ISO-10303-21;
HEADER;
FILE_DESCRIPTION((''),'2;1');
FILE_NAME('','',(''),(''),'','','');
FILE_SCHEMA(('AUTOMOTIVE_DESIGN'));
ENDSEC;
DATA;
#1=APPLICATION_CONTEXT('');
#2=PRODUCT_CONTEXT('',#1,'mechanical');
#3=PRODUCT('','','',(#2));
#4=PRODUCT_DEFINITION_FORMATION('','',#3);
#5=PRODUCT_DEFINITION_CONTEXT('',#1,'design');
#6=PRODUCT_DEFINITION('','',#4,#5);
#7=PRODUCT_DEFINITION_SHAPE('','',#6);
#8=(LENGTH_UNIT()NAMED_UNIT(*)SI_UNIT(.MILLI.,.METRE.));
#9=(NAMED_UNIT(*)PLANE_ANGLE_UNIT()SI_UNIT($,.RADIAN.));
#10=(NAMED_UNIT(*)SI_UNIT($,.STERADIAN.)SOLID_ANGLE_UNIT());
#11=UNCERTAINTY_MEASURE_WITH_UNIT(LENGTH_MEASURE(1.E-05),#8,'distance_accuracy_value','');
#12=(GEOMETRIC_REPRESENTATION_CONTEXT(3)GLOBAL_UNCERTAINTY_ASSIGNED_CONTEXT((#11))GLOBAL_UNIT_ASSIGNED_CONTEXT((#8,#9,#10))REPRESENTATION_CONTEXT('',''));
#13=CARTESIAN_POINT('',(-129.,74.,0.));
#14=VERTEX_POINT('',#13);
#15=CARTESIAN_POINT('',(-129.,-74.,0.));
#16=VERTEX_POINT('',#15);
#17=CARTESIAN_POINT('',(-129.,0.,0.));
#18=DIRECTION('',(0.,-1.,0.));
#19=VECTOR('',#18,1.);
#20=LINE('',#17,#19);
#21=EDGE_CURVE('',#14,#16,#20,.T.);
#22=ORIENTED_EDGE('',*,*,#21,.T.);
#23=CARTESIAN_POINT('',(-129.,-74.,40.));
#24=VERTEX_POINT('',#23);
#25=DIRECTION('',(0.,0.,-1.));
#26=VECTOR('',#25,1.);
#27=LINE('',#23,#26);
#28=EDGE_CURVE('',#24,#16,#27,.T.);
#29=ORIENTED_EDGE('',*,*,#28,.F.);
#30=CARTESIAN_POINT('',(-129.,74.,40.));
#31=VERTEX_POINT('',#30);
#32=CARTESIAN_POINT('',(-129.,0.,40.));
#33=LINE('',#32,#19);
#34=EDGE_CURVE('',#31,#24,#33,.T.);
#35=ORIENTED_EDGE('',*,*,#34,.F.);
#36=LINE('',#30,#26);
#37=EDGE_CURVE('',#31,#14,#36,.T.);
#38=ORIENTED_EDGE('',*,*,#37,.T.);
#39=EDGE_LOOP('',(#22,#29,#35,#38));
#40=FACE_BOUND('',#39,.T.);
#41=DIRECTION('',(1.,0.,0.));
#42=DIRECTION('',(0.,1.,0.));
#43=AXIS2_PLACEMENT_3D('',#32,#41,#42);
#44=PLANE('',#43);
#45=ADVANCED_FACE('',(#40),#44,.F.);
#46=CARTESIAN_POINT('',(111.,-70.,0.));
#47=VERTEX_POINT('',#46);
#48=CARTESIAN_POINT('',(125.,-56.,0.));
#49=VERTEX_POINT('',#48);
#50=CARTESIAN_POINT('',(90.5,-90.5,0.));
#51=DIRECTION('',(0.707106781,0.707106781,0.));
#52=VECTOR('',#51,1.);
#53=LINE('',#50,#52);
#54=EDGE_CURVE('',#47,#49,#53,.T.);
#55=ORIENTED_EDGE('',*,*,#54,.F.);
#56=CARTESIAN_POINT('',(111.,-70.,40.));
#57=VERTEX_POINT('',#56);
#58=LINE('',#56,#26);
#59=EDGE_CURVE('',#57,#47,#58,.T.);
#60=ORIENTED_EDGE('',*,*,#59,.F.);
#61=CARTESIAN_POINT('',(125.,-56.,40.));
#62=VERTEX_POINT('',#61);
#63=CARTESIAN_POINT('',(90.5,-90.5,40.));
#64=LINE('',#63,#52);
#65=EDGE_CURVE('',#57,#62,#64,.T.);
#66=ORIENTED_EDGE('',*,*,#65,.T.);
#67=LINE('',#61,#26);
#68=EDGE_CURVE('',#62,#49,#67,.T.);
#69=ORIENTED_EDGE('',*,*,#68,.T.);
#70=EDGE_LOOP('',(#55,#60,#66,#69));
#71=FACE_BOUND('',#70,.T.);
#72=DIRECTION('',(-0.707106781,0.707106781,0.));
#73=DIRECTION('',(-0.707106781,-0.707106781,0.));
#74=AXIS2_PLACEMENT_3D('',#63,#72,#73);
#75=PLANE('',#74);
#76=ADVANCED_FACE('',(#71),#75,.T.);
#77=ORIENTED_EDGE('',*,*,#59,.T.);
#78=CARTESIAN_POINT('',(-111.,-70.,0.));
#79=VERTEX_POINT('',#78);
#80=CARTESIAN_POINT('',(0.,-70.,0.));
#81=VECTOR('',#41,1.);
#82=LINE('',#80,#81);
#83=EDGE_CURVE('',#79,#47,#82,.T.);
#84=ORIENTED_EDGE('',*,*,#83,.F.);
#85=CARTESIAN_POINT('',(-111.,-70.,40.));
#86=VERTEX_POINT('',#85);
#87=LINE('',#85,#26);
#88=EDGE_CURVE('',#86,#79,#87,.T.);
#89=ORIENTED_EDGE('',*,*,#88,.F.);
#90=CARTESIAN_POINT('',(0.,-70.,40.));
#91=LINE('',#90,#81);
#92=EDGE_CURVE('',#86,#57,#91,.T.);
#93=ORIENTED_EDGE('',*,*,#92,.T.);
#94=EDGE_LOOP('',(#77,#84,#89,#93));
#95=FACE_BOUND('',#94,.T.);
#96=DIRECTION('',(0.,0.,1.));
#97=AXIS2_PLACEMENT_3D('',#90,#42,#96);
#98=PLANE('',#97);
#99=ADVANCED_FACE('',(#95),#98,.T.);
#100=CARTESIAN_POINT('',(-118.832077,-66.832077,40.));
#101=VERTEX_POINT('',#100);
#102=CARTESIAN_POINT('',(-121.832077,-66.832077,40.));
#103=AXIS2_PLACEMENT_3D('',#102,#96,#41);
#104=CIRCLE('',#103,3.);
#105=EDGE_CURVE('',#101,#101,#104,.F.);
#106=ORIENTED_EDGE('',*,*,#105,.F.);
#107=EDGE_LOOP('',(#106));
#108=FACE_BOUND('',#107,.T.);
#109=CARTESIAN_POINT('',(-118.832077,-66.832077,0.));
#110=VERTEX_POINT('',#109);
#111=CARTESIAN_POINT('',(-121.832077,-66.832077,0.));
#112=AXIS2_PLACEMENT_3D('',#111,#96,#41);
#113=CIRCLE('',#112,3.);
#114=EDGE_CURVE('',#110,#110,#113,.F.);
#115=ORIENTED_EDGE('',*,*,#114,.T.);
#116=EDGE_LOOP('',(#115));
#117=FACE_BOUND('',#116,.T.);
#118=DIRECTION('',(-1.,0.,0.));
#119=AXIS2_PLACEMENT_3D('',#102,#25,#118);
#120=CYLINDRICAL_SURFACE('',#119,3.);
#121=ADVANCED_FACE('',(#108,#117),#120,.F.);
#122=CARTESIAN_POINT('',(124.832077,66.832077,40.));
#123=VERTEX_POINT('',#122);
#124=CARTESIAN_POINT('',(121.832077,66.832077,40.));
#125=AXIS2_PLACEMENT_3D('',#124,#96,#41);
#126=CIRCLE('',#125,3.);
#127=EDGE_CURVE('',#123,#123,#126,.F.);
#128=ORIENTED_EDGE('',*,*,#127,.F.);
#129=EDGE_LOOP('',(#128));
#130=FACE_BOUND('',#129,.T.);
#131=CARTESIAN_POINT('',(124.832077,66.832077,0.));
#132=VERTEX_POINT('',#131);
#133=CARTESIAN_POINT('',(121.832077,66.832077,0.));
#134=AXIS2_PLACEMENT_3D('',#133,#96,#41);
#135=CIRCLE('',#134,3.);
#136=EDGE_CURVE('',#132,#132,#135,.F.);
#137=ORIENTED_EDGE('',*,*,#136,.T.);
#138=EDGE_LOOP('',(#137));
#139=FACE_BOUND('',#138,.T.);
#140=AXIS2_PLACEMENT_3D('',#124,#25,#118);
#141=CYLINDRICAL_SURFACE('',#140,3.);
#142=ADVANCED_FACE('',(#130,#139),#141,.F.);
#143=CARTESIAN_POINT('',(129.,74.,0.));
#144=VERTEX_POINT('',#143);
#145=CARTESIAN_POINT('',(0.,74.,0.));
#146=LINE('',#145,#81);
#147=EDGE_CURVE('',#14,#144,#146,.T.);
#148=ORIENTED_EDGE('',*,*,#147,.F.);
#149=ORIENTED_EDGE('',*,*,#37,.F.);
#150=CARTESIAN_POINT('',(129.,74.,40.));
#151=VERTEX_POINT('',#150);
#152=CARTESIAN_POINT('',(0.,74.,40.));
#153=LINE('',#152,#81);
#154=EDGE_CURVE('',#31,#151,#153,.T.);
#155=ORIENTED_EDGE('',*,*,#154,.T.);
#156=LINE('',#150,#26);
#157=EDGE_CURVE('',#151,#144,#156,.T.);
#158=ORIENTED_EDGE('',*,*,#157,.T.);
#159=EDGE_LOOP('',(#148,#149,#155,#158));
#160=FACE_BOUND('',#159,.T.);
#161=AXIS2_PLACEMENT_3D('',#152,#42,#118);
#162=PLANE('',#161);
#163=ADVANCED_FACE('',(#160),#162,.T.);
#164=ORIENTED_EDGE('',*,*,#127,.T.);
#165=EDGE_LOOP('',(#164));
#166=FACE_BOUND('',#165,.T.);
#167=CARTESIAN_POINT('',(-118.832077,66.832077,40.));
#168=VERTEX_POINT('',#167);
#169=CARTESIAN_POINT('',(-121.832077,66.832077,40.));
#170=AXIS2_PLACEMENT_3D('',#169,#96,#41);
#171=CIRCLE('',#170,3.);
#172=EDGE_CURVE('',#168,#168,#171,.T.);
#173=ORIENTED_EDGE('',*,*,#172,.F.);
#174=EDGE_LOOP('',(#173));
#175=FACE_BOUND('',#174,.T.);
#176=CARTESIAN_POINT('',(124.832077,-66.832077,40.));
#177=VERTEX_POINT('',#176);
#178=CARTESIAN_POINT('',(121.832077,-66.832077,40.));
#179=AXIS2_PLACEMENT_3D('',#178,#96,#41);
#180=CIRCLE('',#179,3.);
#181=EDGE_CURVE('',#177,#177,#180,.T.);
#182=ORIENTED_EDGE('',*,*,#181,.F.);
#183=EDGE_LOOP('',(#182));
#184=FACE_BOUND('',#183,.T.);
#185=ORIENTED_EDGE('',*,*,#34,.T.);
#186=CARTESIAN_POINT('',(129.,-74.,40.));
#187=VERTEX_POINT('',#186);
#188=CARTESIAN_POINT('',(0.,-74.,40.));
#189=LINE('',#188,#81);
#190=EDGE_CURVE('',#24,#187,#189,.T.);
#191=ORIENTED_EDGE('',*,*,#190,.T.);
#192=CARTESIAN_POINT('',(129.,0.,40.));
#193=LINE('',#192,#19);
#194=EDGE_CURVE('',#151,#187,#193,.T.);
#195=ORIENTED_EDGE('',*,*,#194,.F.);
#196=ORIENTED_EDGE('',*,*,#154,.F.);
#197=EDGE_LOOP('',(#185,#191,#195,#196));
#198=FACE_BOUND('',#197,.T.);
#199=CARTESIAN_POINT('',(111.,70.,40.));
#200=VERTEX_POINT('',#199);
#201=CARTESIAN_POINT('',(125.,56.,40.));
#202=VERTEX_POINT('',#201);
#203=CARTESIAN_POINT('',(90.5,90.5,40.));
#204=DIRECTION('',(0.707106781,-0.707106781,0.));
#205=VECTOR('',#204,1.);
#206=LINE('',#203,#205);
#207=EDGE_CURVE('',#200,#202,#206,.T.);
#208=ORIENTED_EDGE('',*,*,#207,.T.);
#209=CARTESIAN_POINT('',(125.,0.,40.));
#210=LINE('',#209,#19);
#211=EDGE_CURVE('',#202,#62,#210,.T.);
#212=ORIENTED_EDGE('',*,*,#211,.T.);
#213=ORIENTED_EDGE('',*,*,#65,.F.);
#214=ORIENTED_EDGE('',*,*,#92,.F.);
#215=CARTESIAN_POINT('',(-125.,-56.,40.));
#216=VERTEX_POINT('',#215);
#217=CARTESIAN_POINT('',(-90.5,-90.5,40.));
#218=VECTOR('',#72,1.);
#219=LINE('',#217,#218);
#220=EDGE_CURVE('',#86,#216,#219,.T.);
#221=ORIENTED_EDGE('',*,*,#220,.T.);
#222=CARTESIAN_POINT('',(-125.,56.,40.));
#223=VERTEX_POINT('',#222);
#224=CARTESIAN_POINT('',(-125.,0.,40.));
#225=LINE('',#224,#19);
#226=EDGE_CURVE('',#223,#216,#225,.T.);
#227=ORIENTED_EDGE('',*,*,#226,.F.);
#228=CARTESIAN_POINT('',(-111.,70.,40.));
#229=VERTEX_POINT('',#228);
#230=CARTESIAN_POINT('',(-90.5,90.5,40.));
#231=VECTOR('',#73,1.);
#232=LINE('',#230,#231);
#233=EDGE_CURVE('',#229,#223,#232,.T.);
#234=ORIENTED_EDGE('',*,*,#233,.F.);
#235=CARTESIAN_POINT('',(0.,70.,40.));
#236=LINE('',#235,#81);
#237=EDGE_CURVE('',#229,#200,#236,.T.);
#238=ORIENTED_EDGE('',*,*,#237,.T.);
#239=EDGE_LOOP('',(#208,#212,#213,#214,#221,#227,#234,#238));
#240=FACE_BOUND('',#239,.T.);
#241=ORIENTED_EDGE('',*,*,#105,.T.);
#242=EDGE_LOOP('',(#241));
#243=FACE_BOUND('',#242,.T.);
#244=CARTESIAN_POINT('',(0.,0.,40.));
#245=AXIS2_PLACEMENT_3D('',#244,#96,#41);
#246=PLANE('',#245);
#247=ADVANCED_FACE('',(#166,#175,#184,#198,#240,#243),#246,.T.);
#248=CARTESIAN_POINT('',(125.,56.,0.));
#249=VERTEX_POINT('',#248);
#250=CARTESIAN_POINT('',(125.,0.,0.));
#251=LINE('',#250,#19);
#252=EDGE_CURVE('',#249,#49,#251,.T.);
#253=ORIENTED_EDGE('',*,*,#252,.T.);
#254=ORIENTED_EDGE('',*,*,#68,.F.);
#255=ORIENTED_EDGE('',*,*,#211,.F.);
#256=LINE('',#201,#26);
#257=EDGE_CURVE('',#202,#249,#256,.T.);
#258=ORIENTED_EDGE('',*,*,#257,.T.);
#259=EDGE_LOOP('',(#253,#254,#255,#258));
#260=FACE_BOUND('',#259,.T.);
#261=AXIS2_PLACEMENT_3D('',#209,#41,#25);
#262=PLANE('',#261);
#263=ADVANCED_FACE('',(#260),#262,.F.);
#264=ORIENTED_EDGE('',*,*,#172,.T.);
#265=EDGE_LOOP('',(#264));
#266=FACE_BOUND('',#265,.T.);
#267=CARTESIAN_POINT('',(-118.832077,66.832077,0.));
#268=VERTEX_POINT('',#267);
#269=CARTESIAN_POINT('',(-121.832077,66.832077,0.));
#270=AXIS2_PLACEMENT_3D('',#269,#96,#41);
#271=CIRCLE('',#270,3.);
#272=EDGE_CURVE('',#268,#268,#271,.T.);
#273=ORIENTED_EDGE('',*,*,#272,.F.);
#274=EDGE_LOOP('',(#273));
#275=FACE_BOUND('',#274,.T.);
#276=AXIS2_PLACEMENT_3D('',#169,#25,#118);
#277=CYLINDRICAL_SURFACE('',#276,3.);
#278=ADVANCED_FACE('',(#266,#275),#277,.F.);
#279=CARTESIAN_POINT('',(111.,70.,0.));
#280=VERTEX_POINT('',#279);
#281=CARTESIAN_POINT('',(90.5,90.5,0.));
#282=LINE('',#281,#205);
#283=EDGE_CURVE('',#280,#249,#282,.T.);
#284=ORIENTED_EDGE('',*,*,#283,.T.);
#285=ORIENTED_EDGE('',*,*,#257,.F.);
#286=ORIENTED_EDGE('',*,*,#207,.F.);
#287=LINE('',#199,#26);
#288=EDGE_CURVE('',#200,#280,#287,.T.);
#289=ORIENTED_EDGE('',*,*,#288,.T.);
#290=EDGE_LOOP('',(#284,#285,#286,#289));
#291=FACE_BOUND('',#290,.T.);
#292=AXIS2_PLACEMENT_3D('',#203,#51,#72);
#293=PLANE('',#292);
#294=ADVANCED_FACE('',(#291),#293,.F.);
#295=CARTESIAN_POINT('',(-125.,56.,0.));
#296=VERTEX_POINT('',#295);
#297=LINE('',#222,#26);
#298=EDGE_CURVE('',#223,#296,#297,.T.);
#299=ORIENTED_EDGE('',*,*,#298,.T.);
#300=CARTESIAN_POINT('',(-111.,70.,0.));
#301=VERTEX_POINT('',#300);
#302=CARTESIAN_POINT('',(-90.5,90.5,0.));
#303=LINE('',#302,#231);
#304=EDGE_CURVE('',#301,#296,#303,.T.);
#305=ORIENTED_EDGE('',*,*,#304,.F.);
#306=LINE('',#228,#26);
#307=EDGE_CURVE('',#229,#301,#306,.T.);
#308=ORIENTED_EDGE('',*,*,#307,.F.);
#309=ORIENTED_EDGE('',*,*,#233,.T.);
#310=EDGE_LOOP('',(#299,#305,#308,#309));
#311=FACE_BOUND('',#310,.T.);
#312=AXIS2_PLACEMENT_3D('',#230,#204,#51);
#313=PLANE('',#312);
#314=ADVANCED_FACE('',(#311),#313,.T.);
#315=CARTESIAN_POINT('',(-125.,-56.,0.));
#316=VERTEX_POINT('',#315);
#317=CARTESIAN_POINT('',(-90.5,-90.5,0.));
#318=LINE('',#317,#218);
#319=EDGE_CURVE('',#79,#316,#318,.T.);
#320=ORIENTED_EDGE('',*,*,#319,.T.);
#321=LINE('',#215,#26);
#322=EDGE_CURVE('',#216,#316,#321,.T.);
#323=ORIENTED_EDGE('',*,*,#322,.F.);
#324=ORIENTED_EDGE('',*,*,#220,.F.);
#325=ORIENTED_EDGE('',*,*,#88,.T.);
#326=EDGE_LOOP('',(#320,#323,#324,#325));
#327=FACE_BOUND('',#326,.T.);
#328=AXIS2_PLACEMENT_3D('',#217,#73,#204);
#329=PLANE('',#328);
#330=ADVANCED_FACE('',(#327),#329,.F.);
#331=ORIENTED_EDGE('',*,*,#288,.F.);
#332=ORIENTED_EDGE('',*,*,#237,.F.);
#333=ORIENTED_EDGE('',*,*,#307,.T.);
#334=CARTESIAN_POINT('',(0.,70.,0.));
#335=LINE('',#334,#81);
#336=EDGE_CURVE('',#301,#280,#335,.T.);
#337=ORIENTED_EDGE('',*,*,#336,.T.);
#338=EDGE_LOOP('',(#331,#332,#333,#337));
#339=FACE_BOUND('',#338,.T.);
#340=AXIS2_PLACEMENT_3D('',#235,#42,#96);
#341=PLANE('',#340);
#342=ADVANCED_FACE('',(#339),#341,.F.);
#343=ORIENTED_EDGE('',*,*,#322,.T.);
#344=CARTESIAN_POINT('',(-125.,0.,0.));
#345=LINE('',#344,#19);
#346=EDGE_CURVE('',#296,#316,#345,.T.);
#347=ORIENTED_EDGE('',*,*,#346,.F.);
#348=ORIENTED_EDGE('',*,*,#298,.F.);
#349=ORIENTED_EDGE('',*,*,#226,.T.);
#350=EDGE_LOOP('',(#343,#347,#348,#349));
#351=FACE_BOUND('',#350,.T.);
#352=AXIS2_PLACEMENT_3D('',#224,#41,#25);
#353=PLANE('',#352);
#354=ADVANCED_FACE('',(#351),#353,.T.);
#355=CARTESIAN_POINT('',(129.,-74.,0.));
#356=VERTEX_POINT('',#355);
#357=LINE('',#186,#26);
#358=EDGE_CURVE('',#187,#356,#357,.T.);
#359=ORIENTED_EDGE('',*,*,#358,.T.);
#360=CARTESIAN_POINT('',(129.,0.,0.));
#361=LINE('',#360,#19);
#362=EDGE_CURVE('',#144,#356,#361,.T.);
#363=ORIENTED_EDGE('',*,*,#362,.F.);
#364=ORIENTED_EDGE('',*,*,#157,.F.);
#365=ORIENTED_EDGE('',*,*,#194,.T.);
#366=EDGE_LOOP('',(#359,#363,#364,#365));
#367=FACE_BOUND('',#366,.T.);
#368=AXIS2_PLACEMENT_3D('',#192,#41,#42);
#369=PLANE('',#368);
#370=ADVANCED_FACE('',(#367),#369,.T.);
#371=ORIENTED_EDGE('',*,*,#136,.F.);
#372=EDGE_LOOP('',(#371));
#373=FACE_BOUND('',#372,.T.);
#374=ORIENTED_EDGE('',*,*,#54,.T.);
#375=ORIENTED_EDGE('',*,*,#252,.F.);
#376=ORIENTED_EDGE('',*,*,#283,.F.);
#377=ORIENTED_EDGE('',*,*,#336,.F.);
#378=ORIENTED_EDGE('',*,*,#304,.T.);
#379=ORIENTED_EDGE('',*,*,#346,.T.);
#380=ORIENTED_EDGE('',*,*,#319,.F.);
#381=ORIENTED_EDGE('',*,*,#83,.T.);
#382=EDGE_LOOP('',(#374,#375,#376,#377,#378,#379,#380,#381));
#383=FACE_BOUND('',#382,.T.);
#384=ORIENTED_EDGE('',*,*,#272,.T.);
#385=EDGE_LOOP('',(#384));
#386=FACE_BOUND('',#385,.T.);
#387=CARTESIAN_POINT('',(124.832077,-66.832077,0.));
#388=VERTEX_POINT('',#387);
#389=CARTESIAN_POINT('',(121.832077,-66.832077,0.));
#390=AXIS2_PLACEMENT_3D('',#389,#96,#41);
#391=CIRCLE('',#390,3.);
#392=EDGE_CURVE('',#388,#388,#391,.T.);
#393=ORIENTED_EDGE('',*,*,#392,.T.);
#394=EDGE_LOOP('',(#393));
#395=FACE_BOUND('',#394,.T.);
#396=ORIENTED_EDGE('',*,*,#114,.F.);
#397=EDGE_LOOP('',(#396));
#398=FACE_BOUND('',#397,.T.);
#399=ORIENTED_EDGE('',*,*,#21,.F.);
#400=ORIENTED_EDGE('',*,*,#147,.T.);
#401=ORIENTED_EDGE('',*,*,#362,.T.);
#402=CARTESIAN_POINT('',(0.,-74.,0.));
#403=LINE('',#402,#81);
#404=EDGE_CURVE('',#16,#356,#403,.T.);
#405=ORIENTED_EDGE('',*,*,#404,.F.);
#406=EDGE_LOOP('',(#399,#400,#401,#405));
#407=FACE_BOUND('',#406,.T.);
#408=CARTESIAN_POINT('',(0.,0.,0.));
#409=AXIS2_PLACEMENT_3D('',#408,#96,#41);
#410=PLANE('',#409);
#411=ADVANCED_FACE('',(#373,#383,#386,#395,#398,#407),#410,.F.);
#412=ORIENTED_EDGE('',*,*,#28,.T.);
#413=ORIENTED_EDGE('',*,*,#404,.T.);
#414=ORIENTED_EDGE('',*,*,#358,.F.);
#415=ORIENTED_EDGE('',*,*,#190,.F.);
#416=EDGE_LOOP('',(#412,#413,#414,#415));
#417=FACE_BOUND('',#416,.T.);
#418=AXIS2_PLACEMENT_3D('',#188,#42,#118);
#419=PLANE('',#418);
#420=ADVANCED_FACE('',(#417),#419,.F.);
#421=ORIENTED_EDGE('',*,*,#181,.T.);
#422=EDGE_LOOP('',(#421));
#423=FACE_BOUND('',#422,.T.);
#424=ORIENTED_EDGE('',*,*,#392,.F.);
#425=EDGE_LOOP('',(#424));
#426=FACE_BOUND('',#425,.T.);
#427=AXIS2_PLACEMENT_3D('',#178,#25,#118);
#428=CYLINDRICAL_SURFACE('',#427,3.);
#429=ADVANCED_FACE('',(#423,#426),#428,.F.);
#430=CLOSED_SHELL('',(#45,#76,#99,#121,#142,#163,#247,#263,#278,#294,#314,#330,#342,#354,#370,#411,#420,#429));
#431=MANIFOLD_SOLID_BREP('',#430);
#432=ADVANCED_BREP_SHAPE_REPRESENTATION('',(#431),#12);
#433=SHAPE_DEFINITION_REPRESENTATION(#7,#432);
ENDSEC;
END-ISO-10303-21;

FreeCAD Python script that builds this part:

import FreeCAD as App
import Part
import Sketcher
Q = App.Units.Quantity

doc = App.newDocument("Part")
body = doc.addObject("PartDesign::Body", "Body")

sketch1 = body.newObject("Sketcher::SketchObject", "Sketch")
sketch1.AttachmentSupport = (doc.getObject("XY_Plane"), [""])
sketch1.MapMode = "FlatFace"
sketch1.addGeometry(Part.LineSegment(App.Vector(-129, 74, 0), App.Vector(-129, -74, 0)), False)
sketch1.addGeometry(Part.LineSegment(App.Vector(-129, -74, 0), App.Vector(129, -74, 0)), False)
sketch1.addGeometry(Part.LineSegment(App.Vector(129, -74, 0), App.Vector(129, 74, 0)), False)
sketch1.addGeometry(Part.LineSegment(App.Vector(129, 74, 0), App.Vector(-129, 74, 0)), False)
sketch1.addGeometry(Part.Circle(App.Vector(-121.8, -66.8, 0), App.Vector(0, 0, 1), 3), False)
sketch1.addGeometry(Part.Circle(App.Vector(121.8, -66.8, 0), App.Vector(0, 0, 1), 3), False)
sketch1.addGeometry(Part.Circle(App.Vector(-121.8, 66.8, 0), App.Vector(0, 0, 1), 3), False)
sketch1.addGeometry(Part.LineSegment(App.Vector(111, -70, 0), App.Vector(-111, -70, 0)), False)
sketch1.addGeometry(Part.LineSegment(App.Vector(-111, -70, 0), App.Vector(-125, -56, 0)), False)
sketch1.addGeometry(Part.LineSegment(App.Vector(-125, -56, 0), App.Vector(-125, 56, 0)), False)
sketch1.addGeometry(Part.LineSegment(App.Vector(-125, 56, 0), App.Vector(-111, 70, 0)), False)
sketch1.addGeometry(Part.LineSegment(App.Vector(-111, 70, 0), App.Vector(111, 70, 0)), False)
sketch1.addGeometry(Part.LineSegment(App.Vector(111, 70, 0), App.Vector(125, 56, 0)), False)
sketch1.addGeometry(Part.LineSegment(App.Vector(125, 56, 0), App.Vector(125, -56, 0)), False)
sketch1.addGeometry(Part.LineSegment(App.Vector(125, -56, 0), App.Vector(111, -70, 0)), False)
sketch1.addGeometry(Part.Circle(App.Vector(121.8, 66.8, 0), App.Vector(0, 0, 1), 3), False)
sketch1.addConstraint(Sketcher.Constraint("Coincident", 0, 2, 1, 1))
sketch1.addConstraint(Sketcher.Constraint("Coincident", 1, 2, 2, 1))
sketch1.addConstraint(Sketcher.Constraint("Coincident", 2, 2, 3, 1))
sketch1.addConstraint(Sketcher.Constraint("Coincident", 3, 2, 0, 1))
sketch1.addConstraint(Sketcher.Constraint("Coincident", 7, 2, 8, 1))
sketch1.addConstraint(Sketcher.Constraint("Coincident", 8, 2, 9, 1))
sketch1.addConstraint(Sketcher.Constraint("Coincident", 9, 2, 10, 1))
sketch1.addConstraint(Sketcher.Constraint("Coincident", 10, 2, 11, 1))
sketch1.addConstraint(Sketcher.Constraint("Coincident", 11, 2, 12, 1))
sketch1.addConstraint(Sketcher.Constraint("Coincident", 12, 2, 13, 1))
sketch1.addConstraint(Sketcher.Constraint("Coincident", 13, 2, 14, 1))
sketch1.addConstraint(Sketcher.Constraint("Coincident", 14, 2, 7, 1))
sketch1.addConstraint(Sketcher.Constraint("Vertical", 0))
sketch1.addConstraint(Sketcher.Constraint("Horizontal", 1))
sketch1.addConstraint(Sketcher.Constraint("Vertical", 2))
sketch1.addConstraint(Sketcher.Constraint("Horizontal", 3))
sketch1.addConstraint(Sketcher.Constraint("Horizontal", 7))
sketch1.addConstraint(Sketcher.Constraint("Vertical", 9))
sketch1.addConstraint(Sketcher.Constraint("Horizontal", 11))
sketch1.addConstraint(Sketcher.Constraint("Vertical", 13))
sketch1.addConstraint(Sketcher.Constraint("Equal", 4, 5))
sketch1.addConstraint(Sketcher.Constraint("Equal", 5, 6))
sketch1.addConstraint(Sketcher.Constraint("Equal", 6, 15))
sketch1.addConstraint(Sketcher.Constraint("Symmetric", 5, 3, 6, 3, -1, 1))
sketch1.addConstraint(Sketcher.Constraint("Symmetric", 4, 3, 15, 3, -1, 1))
sketch1.addConstraint(Sketcher.Constraint("Symmetric", 0, 2, 2, 2, -1, 1))
sketch1.addConstraint(Sketcher.Constraint("Symmetric", 7, 2, 11, 2, -1, 1))
sketch1.addConstraint(Sketcher.Constraint("Symmetric", 8, 2, 12, 2, -1, 1))
sketch1.addConstraint(Sketcher.Constraint("Symmetric", 4, 3, 5, 3, -2))
sketch1.addConstraint(Sketcher.Constraint("Perpendicular", 8, 10))
sketch1.addConstraint(Sketcher.Constraint("Perpendicular", 12, 14))
sketch1.addConstraint(Sketcher.Constraint("Horizontal", 9, 2, 12, 2))
sketch1.addConstraint(Sketcher.Constraint("Horizontal", 8, 2, 13, 2))
sketch1.addConstraint(Sketcher.Constraint("Vertical", 7, 2, 10, 2))
sketch1.addConstraint(Sketcher.Constraint("Diameter", 4, Q("6 mm")))
sketch1.addConstraint(Sketcher.Constraint("DistanceX", 1, 1, 1, 2, Q("258 mm")))
sketch1.addConstraint(Sketcher.Constraint("DistanceX", 7, 2, 7, 1, Q("222 mm")))
sketch1.addConstraint(Sketcher.Constraint("DistanceY", 0, 2, 0, 1, Q("148 mm")))
sketch1.addConstraint(Sketcher.Constraint("DistanceY", 9, 1, 9, 2, Q("112 mm")))
sketch1.addConstraint(Sketcher.Constraint("DistanceY", 7, 2, -1, 1, Q("70 mm")))
sketch1.addConstraint(Sketcher.Constraint("DistanceX", 4, 3, -1, 1, Q("121.832077 mm")))
sketch1.addConstraint(Sketcher.Constraint("DistanceY", 4, 3, -1, 1, Q("66.832077 mm")))
pad1 = body.newObject("PartDesign::Pad", "Pad")
pad1.Profile = sketch1
pad1.Length = 40

doc.recompute()
